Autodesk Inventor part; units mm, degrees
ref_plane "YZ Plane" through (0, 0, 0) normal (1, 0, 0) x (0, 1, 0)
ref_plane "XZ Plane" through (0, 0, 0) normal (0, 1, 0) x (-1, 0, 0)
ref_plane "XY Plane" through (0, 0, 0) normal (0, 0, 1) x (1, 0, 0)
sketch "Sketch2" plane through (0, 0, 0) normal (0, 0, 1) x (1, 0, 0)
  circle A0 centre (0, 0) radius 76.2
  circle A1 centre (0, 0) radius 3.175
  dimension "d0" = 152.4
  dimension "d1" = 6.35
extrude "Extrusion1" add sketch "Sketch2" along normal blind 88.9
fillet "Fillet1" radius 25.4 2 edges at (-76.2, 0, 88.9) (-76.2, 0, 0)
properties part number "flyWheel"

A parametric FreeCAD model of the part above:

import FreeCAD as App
import Part
import Sketcher
Q = App.Units.Quantity


def edges_at(feature, points):
    """Names of the edges that pass closest to the given points."""
    edges = feature.Shape.Edges
    near = lambda p: min(range(len(edges)), key=lambda i: edges[i].distToShape(Part.Vertex(*p))[0])
    return sorted({f"Edge{near(p) + 1}" for p in points})

doc = App.newDocument("Part")
params = doc.addObject("Spreadsheet::Sheet", "Params")
for row, (alias, value) in enumerate([
    ("sketch1_diameter", "6 in"),
    ("sketch1_diameter2", "0.25 in"),
    ("pad1_length", "3.5 in"),
    ("fillet_radius", "1 in"),
], start=1):
    params.set(f"A{row}", alias)
    params.set(f"B{row}", "=" + value)
    params.setAlias(f"B{row}", alias)

body = doc.addObject("PartDesign::Body", "Body")

# Sketch on XY plane
sketch1 = body.newObject("Sketcher::SketchObject", "Sketch")
sketch1.AttachmentSupport = (doc.getObject("XY_Plane"), [""])
sketch1.MapMode = "FlatFace"
sketch1.addGeometry(Part.Circle(App.Vector(0, 0, 0), App.Vector(0, 0, 1), 76.2), False)
sketch1.addGeometry(Part.Circle(App.Vector(0, 0, 0), App.Vector(0, 0, 1), 3.2), False)
sketch1.addConstraint(Sketcher.Constraint("Coincident", 0, 3, -1, 1))
sketch1.addConstraint(Sketcher.Constraint("Coincident", 1, 3, -1, 1))
sketch1.addConstraint(Sketcher.Constraint("Diameter", 0, Q("6 in")))
sketch1.addConstraint(Sketcher.Constraint("Diameter", 1, Q("0.25 in")))
sketch1.setExpression("Constraints[2]", "Params.sketch1_diameter")
sketch1.setExpression("Constraints[3]", "Params.sketch1_diameter2")
pad1 = body.newObject("PartDesign::Pad", "Pad")
pad1.Profile = sketch1
pad1.setExpression("Length", "Params.pad1_length")
doc.recompute()

fillet = body.newObject("PartDesign::Fillet", "Fillet")
fillet.Base = (pad1, edges_at(pad1, [(-76.2, 0, 88.9), (-76.2, 0, 0)]))
fillet.setExpression("Radius", "Params.fillet_radius")

doc.recompute()
